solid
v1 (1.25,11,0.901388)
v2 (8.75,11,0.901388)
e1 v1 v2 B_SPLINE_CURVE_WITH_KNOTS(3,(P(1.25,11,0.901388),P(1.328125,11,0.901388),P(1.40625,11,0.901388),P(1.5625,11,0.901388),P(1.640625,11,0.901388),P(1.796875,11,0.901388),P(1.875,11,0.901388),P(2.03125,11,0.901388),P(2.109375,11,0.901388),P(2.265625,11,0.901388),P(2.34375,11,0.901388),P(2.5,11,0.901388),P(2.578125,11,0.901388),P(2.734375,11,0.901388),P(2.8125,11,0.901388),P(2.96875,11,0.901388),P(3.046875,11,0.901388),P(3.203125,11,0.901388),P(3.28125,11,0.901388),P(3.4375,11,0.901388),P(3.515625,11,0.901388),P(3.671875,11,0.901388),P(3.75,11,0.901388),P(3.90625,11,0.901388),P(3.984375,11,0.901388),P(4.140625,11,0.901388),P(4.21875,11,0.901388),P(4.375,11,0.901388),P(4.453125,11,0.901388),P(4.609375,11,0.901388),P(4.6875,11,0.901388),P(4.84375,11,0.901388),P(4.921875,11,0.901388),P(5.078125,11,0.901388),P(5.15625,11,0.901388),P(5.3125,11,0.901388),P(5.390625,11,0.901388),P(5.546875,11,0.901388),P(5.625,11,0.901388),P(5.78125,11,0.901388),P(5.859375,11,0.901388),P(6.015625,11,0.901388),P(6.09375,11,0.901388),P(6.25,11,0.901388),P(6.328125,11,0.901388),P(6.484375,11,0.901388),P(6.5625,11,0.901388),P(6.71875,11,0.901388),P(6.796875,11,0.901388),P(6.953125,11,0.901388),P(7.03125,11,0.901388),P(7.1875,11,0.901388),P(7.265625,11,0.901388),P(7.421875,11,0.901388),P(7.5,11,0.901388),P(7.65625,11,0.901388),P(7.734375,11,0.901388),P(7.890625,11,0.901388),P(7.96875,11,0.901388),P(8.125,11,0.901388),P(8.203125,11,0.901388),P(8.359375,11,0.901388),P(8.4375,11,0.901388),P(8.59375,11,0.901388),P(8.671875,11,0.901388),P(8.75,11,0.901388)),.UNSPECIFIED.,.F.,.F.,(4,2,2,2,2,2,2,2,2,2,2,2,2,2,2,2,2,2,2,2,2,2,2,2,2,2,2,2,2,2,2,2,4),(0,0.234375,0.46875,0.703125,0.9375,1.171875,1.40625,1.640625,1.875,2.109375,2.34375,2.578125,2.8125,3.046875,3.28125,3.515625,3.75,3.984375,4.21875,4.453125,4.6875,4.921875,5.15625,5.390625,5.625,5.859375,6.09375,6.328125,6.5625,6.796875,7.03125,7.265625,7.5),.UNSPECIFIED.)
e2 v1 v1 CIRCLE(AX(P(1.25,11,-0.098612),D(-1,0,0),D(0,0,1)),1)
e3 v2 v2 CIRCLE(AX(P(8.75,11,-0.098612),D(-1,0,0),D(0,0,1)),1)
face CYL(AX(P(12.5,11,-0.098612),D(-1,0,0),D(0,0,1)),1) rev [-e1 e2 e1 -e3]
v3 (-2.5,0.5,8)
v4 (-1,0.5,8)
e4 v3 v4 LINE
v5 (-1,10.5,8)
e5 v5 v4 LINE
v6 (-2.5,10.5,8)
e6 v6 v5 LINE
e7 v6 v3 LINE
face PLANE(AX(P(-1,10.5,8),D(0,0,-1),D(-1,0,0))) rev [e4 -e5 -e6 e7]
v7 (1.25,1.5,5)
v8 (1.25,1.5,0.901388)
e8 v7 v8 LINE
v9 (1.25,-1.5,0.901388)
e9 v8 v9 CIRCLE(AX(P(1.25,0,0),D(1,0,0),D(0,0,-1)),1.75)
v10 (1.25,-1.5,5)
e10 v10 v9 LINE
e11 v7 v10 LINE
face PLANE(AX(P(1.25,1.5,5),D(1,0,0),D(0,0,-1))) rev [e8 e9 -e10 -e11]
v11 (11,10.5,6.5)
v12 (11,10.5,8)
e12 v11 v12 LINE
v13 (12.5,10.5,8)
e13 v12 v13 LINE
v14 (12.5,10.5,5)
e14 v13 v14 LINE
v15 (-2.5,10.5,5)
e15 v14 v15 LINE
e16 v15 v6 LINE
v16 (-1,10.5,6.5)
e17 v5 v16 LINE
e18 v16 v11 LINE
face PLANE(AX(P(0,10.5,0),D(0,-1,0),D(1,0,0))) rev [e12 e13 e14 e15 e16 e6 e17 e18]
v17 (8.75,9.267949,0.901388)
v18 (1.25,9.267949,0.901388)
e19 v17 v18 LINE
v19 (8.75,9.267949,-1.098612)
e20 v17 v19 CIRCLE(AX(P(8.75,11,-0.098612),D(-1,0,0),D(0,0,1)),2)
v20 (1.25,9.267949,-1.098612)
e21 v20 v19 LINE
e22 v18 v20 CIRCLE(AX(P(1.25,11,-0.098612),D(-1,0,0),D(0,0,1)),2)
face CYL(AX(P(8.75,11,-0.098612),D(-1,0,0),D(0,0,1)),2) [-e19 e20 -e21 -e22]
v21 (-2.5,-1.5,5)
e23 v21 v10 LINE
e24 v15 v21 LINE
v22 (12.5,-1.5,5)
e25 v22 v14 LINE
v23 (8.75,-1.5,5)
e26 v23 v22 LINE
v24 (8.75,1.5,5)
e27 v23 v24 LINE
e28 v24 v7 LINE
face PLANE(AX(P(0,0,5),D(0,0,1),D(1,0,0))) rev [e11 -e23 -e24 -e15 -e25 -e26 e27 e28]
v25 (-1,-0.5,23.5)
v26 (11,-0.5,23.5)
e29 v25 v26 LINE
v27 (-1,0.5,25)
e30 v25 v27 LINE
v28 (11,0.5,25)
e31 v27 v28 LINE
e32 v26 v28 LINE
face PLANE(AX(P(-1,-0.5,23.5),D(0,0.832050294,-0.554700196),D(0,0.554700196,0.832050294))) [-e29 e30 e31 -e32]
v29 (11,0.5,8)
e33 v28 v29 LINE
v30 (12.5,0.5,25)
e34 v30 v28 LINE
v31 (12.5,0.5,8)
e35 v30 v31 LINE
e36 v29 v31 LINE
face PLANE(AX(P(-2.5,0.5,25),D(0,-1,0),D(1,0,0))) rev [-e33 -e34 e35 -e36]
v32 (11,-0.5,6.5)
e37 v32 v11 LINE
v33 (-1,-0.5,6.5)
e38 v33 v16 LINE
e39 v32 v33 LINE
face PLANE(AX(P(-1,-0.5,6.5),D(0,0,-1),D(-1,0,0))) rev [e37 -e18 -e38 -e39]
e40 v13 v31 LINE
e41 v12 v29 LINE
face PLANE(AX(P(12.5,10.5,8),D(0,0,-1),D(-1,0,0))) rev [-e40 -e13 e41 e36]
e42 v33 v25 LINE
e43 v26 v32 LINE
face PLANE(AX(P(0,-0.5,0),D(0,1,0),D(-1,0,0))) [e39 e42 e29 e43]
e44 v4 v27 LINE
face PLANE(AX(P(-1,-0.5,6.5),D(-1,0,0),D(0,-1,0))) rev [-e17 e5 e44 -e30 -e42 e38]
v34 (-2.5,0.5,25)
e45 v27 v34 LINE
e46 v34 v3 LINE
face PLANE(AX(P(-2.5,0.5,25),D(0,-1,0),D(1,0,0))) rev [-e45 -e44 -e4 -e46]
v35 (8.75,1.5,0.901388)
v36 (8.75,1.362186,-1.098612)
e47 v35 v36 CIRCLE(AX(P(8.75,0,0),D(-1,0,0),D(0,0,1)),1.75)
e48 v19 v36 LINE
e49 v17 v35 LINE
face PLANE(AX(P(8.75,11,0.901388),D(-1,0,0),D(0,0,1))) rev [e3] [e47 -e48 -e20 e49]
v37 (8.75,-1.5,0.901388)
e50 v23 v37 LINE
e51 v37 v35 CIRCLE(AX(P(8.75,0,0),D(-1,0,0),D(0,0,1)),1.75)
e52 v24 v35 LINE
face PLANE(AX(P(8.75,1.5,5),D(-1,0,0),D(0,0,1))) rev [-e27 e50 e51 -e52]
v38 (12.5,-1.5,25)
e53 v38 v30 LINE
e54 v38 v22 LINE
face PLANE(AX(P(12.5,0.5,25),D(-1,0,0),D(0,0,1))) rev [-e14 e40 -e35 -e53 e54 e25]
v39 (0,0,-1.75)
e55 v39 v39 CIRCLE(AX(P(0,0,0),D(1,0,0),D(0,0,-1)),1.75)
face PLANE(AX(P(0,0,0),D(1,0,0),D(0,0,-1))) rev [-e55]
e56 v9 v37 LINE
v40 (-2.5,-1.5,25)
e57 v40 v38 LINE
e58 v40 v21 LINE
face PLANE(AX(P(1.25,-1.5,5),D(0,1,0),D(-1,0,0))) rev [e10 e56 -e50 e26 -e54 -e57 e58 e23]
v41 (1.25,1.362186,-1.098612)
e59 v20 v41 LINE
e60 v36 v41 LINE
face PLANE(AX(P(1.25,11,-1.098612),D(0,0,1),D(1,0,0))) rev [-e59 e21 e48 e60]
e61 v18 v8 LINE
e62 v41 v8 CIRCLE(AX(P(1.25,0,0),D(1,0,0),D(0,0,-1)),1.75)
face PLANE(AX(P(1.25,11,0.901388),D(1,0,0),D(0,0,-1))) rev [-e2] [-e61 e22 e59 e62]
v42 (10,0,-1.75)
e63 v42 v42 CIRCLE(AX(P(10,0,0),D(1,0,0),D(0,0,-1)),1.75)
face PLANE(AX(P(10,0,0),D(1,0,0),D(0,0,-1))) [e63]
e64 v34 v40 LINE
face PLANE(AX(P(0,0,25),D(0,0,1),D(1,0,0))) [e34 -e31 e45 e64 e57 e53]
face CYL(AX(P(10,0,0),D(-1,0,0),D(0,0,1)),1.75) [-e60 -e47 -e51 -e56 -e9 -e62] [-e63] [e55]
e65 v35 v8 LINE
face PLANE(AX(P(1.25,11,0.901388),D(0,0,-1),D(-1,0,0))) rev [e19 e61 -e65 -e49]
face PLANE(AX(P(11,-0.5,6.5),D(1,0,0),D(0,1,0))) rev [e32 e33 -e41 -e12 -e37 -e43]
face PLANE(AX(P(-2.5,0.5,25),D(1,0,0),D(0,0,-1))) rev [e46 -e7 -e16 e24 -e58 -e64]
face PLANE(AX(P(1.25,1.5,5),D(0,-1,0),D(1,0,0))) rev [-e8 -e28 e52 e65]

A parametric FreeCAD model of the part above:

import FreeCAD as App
import Part
import Sketcher
from FreeCAD import Vector
Q = App.Units.Quantity


def add_polygon(sketch, points):
    """Adds a closed chain of lines whose ends are joined by coincident constraints."""
    first, n = sketch.GeometryCount, len(points)
    for a, b in zip(points, points[1:] + points[:1]):
        sketch.addGeometry(Part.LineSegment(App.Vector(*a, 0), App.Vector(*b, 0)), False)
    for i in range(n):
        sketch.addConstraint(Sketcher.Constraint("Coincident", first + i, 2, first + (i + 1) % n, 1))

doc = App.newDocument("Part")
body = doc.addObject("PartDesign::Body", "Body")

# Sketch on YZ plane
sketch1 = body.newObject("Sketcher::SketchObject", "Sketch")
sketch1.AttachmentSupport = (doc.getObject("YZ_Plane"), [""])
sketch1.MapMode = "FlatFace"
sketch1.addGeometry(Part.Circle(Vector(0, 0, 0), Vector(0, 0, 1), 1.8), False)
sketch1.addConstraint([
    Sketcher.Constraint("Coincident", 0, 3, -1, 1),
    Sketcher.Constraint("Diameter", 0, Q("3.5 mm")),
])
pad1 = body.newObject("PartDesign::Pad", "Pad")
pad1.Profile = sketch1
pad1.Length = 10

# Sketch on XY plane
sketch2 = body.newObject("Sketcher::SketchObject", "Sketch001")
sketch2.AttachmentSupport = (doc.getObject("XY_Plane"), [""])
sketch2.MapMode = "FlatFace"
add_polygon(sketch2, [(1.2, 1.5), (1.2, -1.5), (8.8, -1.5), (8.8, 1.5)])  # lines 0-3
sketch2.addConstraint([
    Sketcher.Constraint("Vertical", 0),
    Sketcher.Constraint("Horizontal", 1),
    Sketcher.Constraint("Vertical", 2),
    Sketcher.Constraint("Horizontal", 3),
    Sketcher.Constraint("DistanceY", 0, 2, 0, 1, Q("3 mm")),
    Sketcher.Constraint("DistanceX", 1, 1, 1, 2, Q("7.5 mm")),
    Sketcher.Constraint("DistanceY", 0, 2, -1, 1, Q("1.5 mm")),
    Sketcher.Constraint("DistanceX", -1, 1, 0, 2, Q("1.25 mm")),
])
pad2 = body.newObject("PartDesign::Pad", "Pad001")
pad2.Profile = sketch2
pad2.Length = 5

# Sketch on XY plane
sketch3 = body.newObject("Sketcher::SketchObject", "Sketch002")
sketch3.AttachmentSupport = (doc.getObject("XY_Plane"), [""])
sketch3.MapMode = "FlatFace"
sketch3.AttachmentOffset = App.Placement(Vector(0, 0, 5), App.Rotation())
add_polygon(sketch3, [(-2.5, 0.5), (-2.5, -1.5), (12.5, -1.5), (12.5, 0.5)])  # lines 0-3
sketch3.addConstraint([
    Sketcher.Constraint("Vertical", 0),
    Sketcher.Constraint("Horizontal", 1),
    Sketcher.Constraint("Vertical", 2),
    Sketcher.Constraint("Horizontal", 3),
    Sketcher.Constraint("DistanceX", 1, 1, 1, 2, Q("15 mm")),
    Sketcher.Constraint("DistanceY", 0, 2, 0, 1, Q("2 mm")),
    Sketcher.Constraint("DistanceX", 0, 2, -1, 1, Q("2.5 mm")),
    Sketcher.Constraint("DistanceY", 0, 2, -1, 1, Q("1.5 mm")),
])
pad3 = body.newObject("PartDesign::Pad", "Pad002")
pad3.Profile = sketch3
pad3.Length = 20

# Sketch on XZ plane
sketch4 = body.newObject("Sketcher::SketchObject", "Sketch003")
sketch4.AttachmentSupport = (doc.getObject("XZ_Plane"), [""])
sketch4.MapMode = "FlatFace"
sketch4.AttachmentOffset = App.Placement(Vector(0, 0, -0.5), App.Rotation())
add_polygon(sketch4, [(-1, 6), (-1, 24), (11, 24), (11, 6)])  # lines 0-3
sketch4.addConstraint([
    Sketcher.Constraint("Vertical", 0),
    Sketcher.Constraint("Horizontal", 1),
    Sketcher.Constraint("Vertical", 2),
    Sketcher.Constraint("Horizontal", 3),
    Sketcher.Constraint("DistanceX", 1, 1, 1, 2, Q("12 mm")),
    Sketcher.Constraint("DistanceY", 0, 1, 0, 2, Q("17 mm")),
    Sketcher.Constraint("DistanceX", 0, 2, -1, 1, Q("1 mm")),
    Sketcher.Constraint("DistanceY", -1, 1, 0, 2, Q("23.5 mm")),
])
pocket1 = body.newObject("PartDesign::Pocket", "Pocket")
pocket1.Profile = sketch4
pocket1.Length = 1
pocket1.Reversed = True

# Sketch on YZ plane
sketch5 = body.newObject("Sketcher::SketchObject", "Sketch004")
sketch5.AttachmentSupport = (doc.getObject("YZ_Plane"), [""])
sketch5.MapMode = "FlatFace"
sketch5.AttachmentOffset = App.Placement(Vector(0, 0, 11), App.Rotation())
add_polygon(sketch5, [(-0.5, 23.5), (0.5, 25), (0.5, 23.5)])  # lines 0-2
sketch5.addConstraint([
    Sketcher.Constraint("Vertical", 1),
    Sketcher.Constraint("Horizontal", 2),
    Sketcher.Constraint("DistanceX", 2, 2, 2, 1, Q("1 mm")),
    Sketcher.Constraint("DistanceY", 1, 2, 1, 1, Q("1.5 mm")),
    Sketcher.Constraint("DistanceY", -1, 1, 0, 2, Q("25 mm")),
    Sketcher.Constraint("DistanceX", -1, 1, 0, 2, Q("0.5 mm")),
])
pocket2 = body.newObject("PartDesign::Pocket", "Pocket001")
pocket2.Profile = sketch5
pocket2.Length = 12

# Sketch on XZ plane
sketch6 = body.newObject("Sketcher::SketchObject", "Sketch005")
sketch6.AttachmentSupport = (doc.getObject("XZ_Plane"), [""])
sketch6.MapMode = "FlatFace"
sketch6.AttachmentOffset = App.Placement(Vector(0, 0, -0.5), App.Rotation())
add_polygon(sketch6, [(12.5, 5), (-2.5, 5), (-2.5, 8), (-1, 8), (-1, 6.5), (11, 6.5), (11, 8), (12.5, 8)])  # lines 0-7
sketch6.addConstraint([
    Sketcher.Constraint("Horizontal", 0),
    Sketcher.Constraint("Vertical", 1),
    Sketcher.Constraint("Horizontal", 2),
    Sketcher.Constraint("Vertical", 3),
    Sketcher.Constraint("Horizontal", 4),
    Sketcher.Constraint("Vertical", 5),
    Sketcher.Constraint("Horizontal", 6),
    Sketcher.Constraint("Vertical", 7),
    Sketcher.Constraint("Horizontal", 2, 2, 5, 2),
    Sketcher.Constraint("Equal", 2, 6),
    Sketcher.Constraint("Equal", 6, 3),
    Sketcher.Constraint("DistanceX", 0, 2, 0, 1, Q("15 mm")),
    Sketcher.Constraint("DistanceX", 4, 1, 4, 2, Q("12 mm")),
    Sketcher.Constraint("DistanceY", 1, 1, 1, 2, Q("3 mm")),
    Sketcher.Constraint("DistanceY", -1, 1, 0, 2, Q("5 mm")),
    Sketcher.Constraint("DistanceX", 2, 2, -1, 1, Q("1 mm")),
])
pad4 = body.newObject("PartDesign::Pad", "Pad003")
pad4.Profile = sketch6
pad4.Length = 10
pad4.Reversed = True

# Sketch on XZ plane
sketch7 = body.newObject("Sketcher::SketchObject", "Sketch006")
sketch7.AttachmentSupport = (doc.getObject("XZ_Plane"), [""])
sketch7.MapMode = "FlatFace"
add_polygon(sketch7, [(1.2, -1.1), (1.2, 0.9), (8.8, 0.9), (8.8, -1.1)])  # lines 0-3
sketch7.addConstraint([
    Sketcher.Constraint("Vertical", 0),
    Sketcher.Constraint("Horizontal", 1),
    Sketcher.Constraint("Vertical", 2),
    Sketcher.Constraint("Horizontal", 3),
    Sketcher.Constraint("DistanceY", 0, 1, 0, 2, Q("2 mm")),
    Sketcher.Constraint("DistanceX", 1, 1, 1, 2, Q("7.5 mm")),
    Sketcher.Constraint("DistanceX", -1, 1, 0, 2, Q("1.25 mm")),
    Sketcher.Constraint("DistanceY", -1, 1, 0, 2, Q("0.901388 mm")),
])
pad5 = body.newObject("PartDesign::Pad", "Pad004")
pad5.Profile = sketch7
pad5.Length = 11
pad5.Reversed = True

# Sketch on YZ plane
sketch8 = body.newObject("Sketcher::SketchObject", "Sketch007")
sketch8.AttachmentSupport = (doc.getObject("YZ_Plane"), [""])
sketch8.MapMode = "FlatFace"
sketch8.AttachmentOffset = App.Placement(Vector(0, 0, 8.75), App.Rotation())
sketch8.addGeometry(Part.Circle(Vector(11, -0.1, 0), Vector(0, 0, 1), 2), False)
sketch8.addConstraint([
    Sketcher.Constraint("Diameter", 0, Q("4 mm")),
    Sketcher.Constraint("DistanceX", -1, 1, 0, 3, Q("11 mm")),
    Sketcher.Constraint("DistanceY", 0, 3, -1, 1, Q("0.098612 mm")),
])
pad6 = body.newObject("PartDesign::Pad", "Pad005")
pad6.Profile = sketch8
pad6.Length = 7.5
pad6.Reversed = True

# Sketch on YZ plane
sketch9 = body.newObject("Sketcher::SketchObject", "Sketch008")
sketch9.AttachmentSupport = (doc.getObject("YZ_Plane"), [""])
sketch9.MapMode = "FlatFace"
sketch9.AttachmentOffset = App.Placement(Vector(0, 0, 1.25), App.Rotation())
sketch9.addGeometry(Part.Circle(Vector(11, -0.1, 0), Vector(0, 0, 1), 1), False)
sketch9.addConstraint([
    Sketcher.Constraint("Diameter", 0, Q("2 mm")),
    Sketcher.Constraint("DistanceX", -1, 1, 0, 3, Q("11 mm")),
    Sketcher.Constraint("DistanceY", 0, 3, -1, 1, Q("0.098612 mm")),
])
pocket3 = body.newObject("PartDesign::Pocket", "Pocket002")
pocket3.Profile = sketch9
pocket3.Type = "ThroughAll"
pocket3.Reversed = True

doc.recompute()
